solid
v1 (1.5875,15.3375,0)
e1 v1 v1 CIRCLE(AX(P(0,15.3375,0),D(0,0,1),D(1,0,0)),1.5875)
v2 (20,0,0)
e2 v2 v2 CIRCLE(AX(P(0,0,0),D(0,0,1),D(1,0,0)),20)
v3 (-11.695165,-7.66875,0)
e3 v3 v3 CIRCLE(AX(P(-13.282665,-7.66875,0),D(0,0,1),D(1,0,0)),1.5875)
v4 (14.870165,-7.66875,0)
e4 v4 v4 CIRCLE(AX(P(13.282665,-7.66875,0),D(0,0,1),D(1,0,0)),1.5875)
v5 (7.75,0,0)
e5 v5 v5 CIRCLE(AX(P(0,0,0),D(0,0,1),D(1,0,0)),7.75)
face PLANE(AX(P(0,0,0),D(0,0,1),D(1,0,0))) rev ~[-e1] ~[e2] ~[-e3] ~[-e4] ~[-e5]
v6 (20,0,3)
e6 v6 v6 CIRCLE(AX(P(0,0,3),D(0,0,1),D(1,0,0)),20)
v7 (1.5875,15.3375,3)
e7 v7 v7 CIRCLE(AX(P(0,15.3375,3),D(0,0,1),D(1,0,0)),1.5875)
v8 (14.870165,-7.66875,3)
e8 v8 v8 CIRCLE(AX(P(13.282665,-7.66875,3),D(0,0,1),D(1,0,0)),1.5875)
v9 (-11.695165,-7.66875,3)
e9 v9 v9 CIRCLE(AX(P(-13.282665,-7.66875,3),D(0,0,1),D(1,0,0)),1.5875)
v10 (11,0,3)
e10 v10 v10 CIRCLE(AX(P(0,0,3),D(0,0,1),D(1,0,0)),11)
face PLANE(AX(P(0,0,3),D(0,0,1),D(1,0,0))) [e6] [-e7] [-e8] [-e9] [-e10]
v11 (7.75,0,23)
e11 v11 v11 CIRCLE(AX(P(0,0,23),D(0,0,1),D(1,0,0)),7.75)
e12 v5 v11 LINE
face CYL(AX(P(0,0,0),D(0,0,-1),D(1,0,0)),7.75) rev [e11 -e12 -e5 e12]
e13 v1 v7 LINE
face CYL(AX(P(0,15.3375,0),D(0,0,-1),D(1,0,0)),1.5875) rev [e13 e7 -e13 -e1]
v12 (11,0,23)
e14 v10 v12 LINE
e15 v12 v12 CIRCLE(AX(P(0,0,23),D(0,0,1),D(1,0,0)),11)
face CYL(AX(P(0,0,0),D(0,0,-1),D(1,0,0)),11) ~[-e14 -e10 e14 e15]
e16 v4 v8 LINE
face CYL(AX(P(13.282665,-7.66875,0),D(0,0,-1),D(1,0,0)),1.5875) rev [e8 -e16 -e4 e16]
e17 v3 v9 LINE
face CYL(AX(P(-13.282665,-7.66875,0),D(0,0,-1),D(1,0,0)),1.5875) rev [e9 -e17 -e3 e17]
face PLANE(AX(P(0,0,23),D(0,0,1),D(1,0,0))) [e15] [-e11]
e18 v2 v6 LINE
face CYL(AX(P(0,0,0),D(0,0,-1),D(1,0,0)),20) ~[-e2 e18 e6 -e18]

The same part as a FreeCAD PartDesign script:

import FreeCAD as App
import Part
import Sketcher
Q = App.Units.Quantity

doc = App.newDocument("Part")
body = doc.addObject("PartDesign::Body", "Body")

# Sketch on XY plane
sketch1 = doc.addObject("Sketcher::SketchObject", "Sketch")
body.addObject(sketch1)
sketch1.AttachmentSupport = (doc.XY_Plane, [""])
sketch1.MapMode = "FlatFace"
sketch1.addGeometry([
    Part.Circle(App.Vector(0, 0, 0), App.Vector(0, 0, 1), 11),
    Part.Circle(App.Vector(0, 0, 0), App.Vector(0, 0, 1), 8),
], False)
sketch1.addConstraint([
    Sketcher.Constraint("Coincident", 0, 3, -1, 1),
    Sketcher.Constraint("Coincident", 1, 3, -1, 1),
    Sketcher.Constraint("Diameter", 0, Q("22 mm")),
    Sketcher.Constraint("Diameter", 1, Q("15.5 mm")),
])
pad1 = doc.addObject("PartDesign::Pad", "Pad")
body.addObject(pad1)
pad1.Profile = sketch1
pad1.Length = 23

# Sketch on XY plane
sketch2 = doc.addObject("Sketcher::SketchObject", "Sketch001")
body.addObject(sketch2)
sketch2.AttachmentSupport = (doc.XY_Plane, [""])
sketch2.MapMode = "FlatFace"
sketch2.addGeometry([
    Part.Circle(App.Vector(0, 0, 0), App.Vector(0, 0, 1), 20),  # 0
    Part.Circle(App.Vector(-13.3, -7.7, 0), App.Vector(0, 0, 1), 1.6),  # 1
    Part.Circle(App.Vector(13.3, -7.7, 0), App.Vector(0, 0, 1), 1.6),  # 2
    Part.Circle(App.Vector(0, 0, 0), App.Vector(0, 0, 1), 11),  # 3
    Part.Circle(App.Vector(0, 15.3, 0), App.Vector(0, 0, 1), 1.6),  # 4
], False)
sketch2.addConstraint([
    Sketcher.Constraint("Coincident", 0, 3, -1, 1),
    Sketcher.Constraint("Coincident", 3, 3, -1, 1),
    Sketcher.Constraint("Equal", 1, 2),
    Sketcher.Constraint("Equal", 2, 4),
    Sketcher.Constraint("Symmetric", 1, 3, 2, 3, -2),
    Sketcher.Constraint("PointOnObject", 4, 3, -2),
    Sketcher.Constraint("Diameter", 0, Q("40 mm")),
    Sketcher.Constraint("Diameter", 3, Q("22 mm")),
    Sketcher.Constraint("Diameter", 1, Q("3.175 mm")),
    Sketcher.Constraint("DistanceY", -1, 1, 4, 3, Q("15.3375 mm")),
    Sketcher.Constraint("DistanceY", 1, 3, -1, 1, Q("7.66875 mm")),
    Sketcher.Constraint("DistanceX", 1, 3, 2, 3, Q("26.56533 mm")),
])
pad2 = doc.addObject("PartDesign::Pad", "Pad001")
body.addObject(pad2)
pad2.Profile = sketch2
pad2.Length = 3

doc.recompute()
